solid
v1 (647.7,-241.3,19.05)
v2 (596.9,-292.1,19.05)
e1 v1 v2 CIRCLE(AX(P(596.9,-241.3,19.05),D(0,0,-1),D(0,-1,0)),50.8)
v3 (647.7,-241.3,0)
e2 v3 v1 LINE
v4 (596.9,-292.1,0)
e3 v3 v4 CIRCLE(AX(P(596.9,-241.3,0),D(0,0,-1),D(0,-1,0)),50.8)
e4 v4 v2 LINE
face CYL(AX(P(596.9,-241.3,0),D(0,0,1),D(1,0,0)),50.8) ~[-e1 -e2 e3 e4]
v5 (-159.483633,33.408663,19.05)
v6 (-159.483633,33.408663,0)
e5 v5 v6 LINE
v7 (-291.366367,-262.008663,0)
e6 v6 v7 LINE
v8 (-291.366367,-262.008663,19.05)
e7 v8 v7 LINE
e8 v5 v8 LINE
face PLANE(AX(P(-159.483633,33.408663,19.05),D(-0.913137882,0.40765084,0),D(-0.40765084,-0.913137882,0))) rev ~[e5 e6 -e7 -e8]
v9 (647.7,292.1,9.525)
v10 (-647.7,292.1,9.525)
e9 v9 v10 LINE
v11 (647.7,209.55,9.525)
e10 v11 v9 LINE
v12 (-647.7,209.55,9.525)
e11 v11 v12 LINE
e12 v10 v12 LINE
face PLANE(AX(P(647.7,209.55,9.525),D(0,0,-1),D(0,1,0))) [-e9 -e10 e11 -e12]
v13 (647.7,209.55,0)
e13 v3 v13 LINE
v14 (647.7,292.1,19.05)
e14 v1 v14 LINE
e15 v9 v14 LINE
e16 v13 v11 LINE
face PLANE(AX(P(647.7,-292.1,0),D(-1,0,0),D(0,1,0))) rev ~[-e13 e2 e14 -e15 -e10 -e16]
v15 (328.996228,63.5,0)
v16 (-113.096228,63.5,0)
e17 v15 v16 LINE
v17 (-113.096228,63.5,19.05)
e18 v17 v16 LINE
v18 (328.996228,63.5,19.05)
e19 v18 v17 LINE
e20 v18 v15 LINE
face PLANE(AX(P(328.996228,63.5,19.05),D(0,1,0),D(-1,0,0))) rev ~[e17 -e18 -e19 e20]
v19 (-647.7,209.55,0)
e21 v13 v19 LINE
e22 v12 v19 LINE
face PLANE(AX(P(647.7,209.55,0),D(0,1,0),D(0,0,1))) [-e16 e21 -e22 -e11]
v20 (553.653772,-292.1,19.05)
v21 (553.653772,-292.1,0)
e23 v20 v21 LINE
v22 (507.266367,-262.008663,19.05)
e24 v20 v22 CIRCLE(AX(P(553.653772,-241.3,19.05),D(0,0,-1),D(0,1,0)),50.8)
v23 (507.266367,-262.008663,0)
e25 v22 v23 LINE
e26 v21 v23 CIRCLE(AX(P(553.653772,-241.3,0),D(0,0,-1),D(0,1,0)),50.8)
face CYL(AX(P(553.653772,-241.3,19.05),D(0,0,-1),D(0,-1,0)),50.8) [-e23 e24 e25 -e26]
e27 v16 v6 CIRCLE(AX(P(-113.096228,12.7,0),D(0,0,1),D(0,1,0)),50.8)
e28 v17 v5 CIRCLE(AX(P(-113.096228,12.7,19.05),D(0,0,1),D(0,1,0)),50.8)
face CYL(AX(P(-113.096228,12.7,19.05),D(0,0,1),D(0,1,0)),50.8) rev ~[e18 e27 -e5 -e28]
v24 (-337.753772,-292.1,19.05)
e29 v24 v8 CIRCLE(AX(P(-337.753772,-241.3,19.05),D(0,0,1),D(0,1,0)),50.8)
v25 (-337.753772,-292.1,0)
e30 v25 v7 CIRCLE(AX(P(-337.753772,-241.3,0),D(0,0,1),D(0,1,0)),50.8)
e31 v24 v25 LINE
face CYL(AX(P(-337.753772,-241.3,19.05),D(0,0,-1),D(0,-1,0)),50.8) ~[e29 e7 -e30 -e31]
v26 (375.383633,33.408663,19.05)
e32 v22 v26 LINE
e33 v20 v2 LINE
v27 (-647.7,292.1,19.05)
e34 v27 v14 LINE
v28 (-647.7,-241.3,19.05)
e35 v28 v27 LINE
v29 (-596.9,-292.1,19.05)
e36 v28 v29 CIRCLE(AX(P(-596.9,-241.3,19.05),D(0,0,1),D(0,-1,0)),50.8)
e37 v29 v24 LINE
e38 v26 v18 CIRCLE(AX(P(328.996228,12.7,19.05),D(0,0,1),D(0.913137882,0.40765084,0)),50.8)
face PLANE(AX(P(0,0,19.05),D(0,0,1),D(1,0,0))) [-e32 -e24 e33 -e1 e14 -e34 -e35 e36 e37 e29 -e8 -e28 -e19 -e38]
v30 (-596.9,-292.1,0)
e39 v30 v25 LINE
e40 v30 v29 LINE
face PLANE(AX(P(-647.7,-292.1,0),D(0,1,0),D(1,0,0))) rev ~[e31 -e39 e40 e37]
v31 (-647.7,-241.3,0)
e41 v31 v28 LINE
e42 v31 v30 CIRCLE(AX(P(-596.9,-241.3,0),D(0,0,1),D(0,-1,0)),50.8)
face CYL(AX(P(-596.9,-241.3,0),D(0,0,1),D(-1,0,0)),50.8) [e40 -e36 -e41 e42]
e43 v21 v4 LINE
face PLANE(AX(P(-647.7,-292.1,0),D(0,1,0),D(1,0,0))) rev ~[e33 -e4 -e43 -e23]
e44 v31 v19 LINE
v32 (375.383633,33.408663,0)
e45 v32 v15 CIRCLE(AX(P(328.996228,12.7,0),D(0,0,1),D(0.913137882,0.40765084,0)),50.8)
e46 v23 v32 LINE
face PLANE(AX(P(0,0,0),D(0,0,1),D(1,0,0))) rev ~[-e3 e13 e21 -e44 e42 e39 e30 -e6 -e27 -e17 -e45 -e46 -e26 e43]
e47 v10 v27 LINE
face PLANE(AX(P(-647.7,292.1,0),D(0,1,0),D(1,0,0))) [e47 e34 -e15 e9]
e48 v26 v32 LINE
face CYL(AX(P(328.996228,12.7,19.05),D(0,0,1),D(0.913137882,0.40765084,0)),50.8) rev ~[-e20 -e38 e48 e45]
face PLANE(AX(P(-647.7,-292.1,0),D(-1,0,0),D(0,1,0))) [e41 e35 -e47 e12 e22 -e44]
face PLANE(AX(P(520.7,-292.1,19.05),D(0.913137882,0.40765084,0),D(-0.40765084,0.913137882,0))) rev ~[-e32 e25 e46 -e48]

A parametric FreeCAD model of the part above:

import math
import FreeCAD as App
import Part
import Sketcher

V = App.Vector
Q = App.Units.Quantity


def edges_at(feature, points):
    """Names of the edges that pass closest to the given points."""
    edges = feature.Shape.Edges
    near = lambda p: min(range(len(edges)), key=lambda i: edges[i].distToShape(Part.Vertex(*p))[0])
    return sorted({f"Edge{near(p) + 1}" for p in points})

doc = App.newDocument("Part")
body = doc.addObject("PartDesign::Body", "Body")

sketch1 = body.newObject("Sketcher::SketchObject", "Sketch")
sketch1.AttachmentSupport = (doc.getObject("XY_Plane"), [""])
sketch1.MapMode = "FlatFace"
sketch1.addGeometry([
    Part.LineSegment(V(-648, 292, 0), V(-648, -292, 0)),
    Part.LineSegment(V(-648, -292, 0), V(648, -292, 0)),
    Part.LineSegment(V(648, -292, 0), V(648, 292, 0)),
    Part.LineSegment(V(648, 292, 0), V(-648, 292, 0)),
], False)
sketch1.addConstraint([
    Sketcher.Constraint("Coincident", 0, 2, 1, 1),
    Sketcher.Constraint("Coincident", 1, 2, 2, 1),
    Sketcher.Constraint("Coincident", 2, 2, 3, 1),
    Sketcher.Constraint("Coincident", 3, 2, 0, 1),
    Sketcher.Constraint("Vertical", 0),
    Sketcher.Constraint("Horizontal", 1),
    Sketcher.Constraint("Vertical", 2),
    Sketcher.Constraint("Horizontal", 3),
    Sketcher.Constraint("Symmetric", 0, 2, 2, 2, -1, 1),
    Sketcher.Constraint("DistanceX", 1, 1, 1, 2, Q("51 in")),
    Sketcher.Constraint("DistanceY", 0, 2, 0, 1, Q("23 in")),
])
pad1 = body.newObject("PartDesign::Pad", "Pad")
pad1.Profile = sketch1
pad1.Length = Q("0.75 in")

sketch2 = body.newObject("Sketcher::SketchObject", "Sketch001")
sketch2.AttachmentSupport = (doc.getObject("XY_Plane"), [""])
sketch2.MapMode = "FlatFace"
sketch2.AttachmentOffset = App.Placement(V(0, 0, 0.75 * 25.4), App.Rotation())
sketch2.addGeometry([
    Part.LineSegment(V(-159, 33, 0), V(-305, -292, 0)),
    Part.LineSegment(V(-305, -292, 0), V(521, -292, 0)),
    Part.LineSegment(V(521, -292, 0), V(375, 33, 0)),
    Part.ArcOfCircle(Part.Circle(V(329, 13, 0), V(0, 0, 1), 51), math.radians(24), math.radians(90)),
    Part.LineSegment(V(329, 64, 0), V(-113, 64, 0)),
    Part.ArcOfCircle(Part.Circle(V(-113, 13, 0), V(0, 0, 1), 51), math.radians(90), math.radians(156)),
], False)
sketch2.addConstraint([
    Sketcher.Constraint("Coincident", 0, 2, 1, 1),
    Sketcher.Constraint("Coincident", 1, 2, 2, 1),
    Sketcher.Constraint("Tangent", 2, 2, 3, 1),
    Sketcher.Constraint("Tangent", 3, 2, 4, 1),
    Sketcher.Constraint("Tangent", 4, 2, 5, 1),
    Sketcher.Constraint("Tangent", 5, 2, 0, 1),
    Sketcher.Constraint("Horizontal", 1),
    Sketcher.Constraint("Horizontal", 4),
    Sketcher.Constraint("Equal", 3, 5),
    Sketcher.Constraint("Horizontal", 2, 2, 5, 2),
    Sketcher.Constraint("Radius", 3, Q("2 in")),
    Sketcher.Constraint("DistanceX", 1, 1, 1, 2, Q("32.5 in")),
    Sketcher.Constraint("DistanceX", 0, 2, -1, 1, Q("12 in")),
    Sketcher.Constraint("DistanceY", 0, 2, 5, 3, Q("12 in")),
    Sketcher.Constraint("DistanceY", -1, 1, 3, 3, Q("0.5 in")),
    Sketcher.Constraint("Distance", 0, 356.47263),
])
pocket1 = body.newObject("PartDesign::Pocket", "Pocket")
pocket1.Profile = sketch2
pocket1.Length = Q("1 in")
doc.recompute()

fillet = body.newObject("PartDesign::Fillet", "Fillet")
fillet.Base = (pocket1, edges_at(pocket1, [
    (-304.8, -292.1, 9.525),
    (520.7, -292.1, 9.525),
    (647.7, -292.1, 9.525),
    (-647.7, -292.1, 9.525),
]))
fillet.Radius = Q("2 in")

sketch3 = body.newObject("Sketcher::SketchObject", "Sketch002")
sketch3.AttachmentSupport = (doc.getObject("YZ_Plane"), [""])
sketch3.MapMode = "FlatFace"
sketch3.AttachmentOffset = App.Placement(V(0, 0, 25.5 * 25.4), App.Rotation())
sketch3.addGeometry([
    Part.LineSegment(V(210, 10, 0), V(210, 0, 0)),
    Part.LineSegment(V(210, 0, 0), V(292, 0, 0)),
    Part.LineSegment(V(292, 0, 0), V(292, 10, 0)),
    Part.LineSegment(V(292, 10, 0), V(210, 10, 0)),
], False)
sketch3.addConstraint([
    Sketcher.Constraint("Coincident", 0, 2, 1, 1),
    Sketcher.Constraint("Coincident", 1, 2, 2, 1),
    Sketcher.Constraint("Coincident", 2, 2, 3, 1),
    Sketcher.Constraint("Coincident", 3, 2, 0, 1),
    Sketcher.Constraint("Vertical", 0),
    Sketcher.Constraint("Horizontal", 1),
    Sketcher.Constraint("Vertical", 2),
    Sketcher.Constraint("Horizontal", 3),
    Sketcher.Constraint("PointOnObject", 0, 2, -1),
    Sketcher.Constraint("DistanceX", 1, 1, 1, 2, Q("3.25 in")),
    Sketcher.Constraint("DistanceX", -1, 1, 1, 2, Q("11.5 in")),
    Sketcher.Constraint("DistanceY", 0, 2, 0, 1, Q("0.375 in")),
])
pocket2 = body.newObject("PartDesign::Pocket", "Pocket001")
pocket2.Profile = sketch3
pocket2.Type = "ThroughAll"

doc.recompute()
